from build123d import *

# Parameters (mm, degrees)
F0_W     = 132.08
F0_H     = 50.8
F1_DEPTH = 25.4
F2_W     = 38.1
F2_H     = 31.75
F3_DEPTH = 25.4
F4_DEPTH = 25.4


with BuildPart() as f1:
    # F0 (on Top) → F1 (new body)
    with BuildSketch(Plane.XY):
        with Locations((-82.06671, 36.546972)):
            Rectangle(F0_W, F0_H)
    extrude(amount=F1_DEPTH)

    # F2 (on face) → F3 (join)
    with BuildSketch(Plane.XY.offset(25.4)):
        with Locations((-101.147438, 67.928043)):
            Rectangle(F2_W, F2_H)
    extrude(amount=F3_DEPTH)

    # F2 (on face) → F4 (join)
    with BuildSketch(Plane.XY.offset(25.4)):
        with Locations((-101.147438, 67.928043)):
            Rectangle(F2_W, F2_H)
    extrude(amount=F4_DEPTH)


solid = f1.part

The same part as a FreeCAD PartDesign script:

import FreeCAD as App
import Part
import Sketcher
from FreeCAD import Vector
Q = App.Units.Quantity

doc = App.newDocument("Part")
body = doc.addObject("PartDesign::Body", "Body")

sketch1 = body.newObject("Sketcher::SketchObject", "Sketch")
sketch1.AttachmentSupport = (doc.getObject("XY_Plane"), [""])
sketch1.MapMode = "FlatFace"
sketch1.addGeometry(Part.LineSegment(Vector(-148, 62, 0), Vector(-148, 11, 0)), False)
sketch1.addGeometry(Part.LineSegment(Vector(-148, 11, 0), Vector(-16, 11, 0)), False)
sketch1.addGeometry(Part.LineSegment(Vector(-16, 11, 0), Vector(-16, 62, 0)), False)
sketch1.addGeometry(Part.LineSegment(Vector(-16, 62, 0), Vector(-148, 62, 0)), False)
sketch1.addConstraint(Sketcher.Constraint("Coincident", 0, 2, 1, 1))
sketch1.addConstraint(Sketcher.Constraint("Coincident", 1, 2, 2, 1))
sketch1.addConstraint(Sketcher.Constraint("Coincident", 2, 2, 3, 1))
sketch1.addConstraint(Sketcher.Constraint("Coincident", 3, 2, 0, 1))
sketch1.addConstraint(Sketcher.Constraint("Vertical", 0))
sketch1.addConstraint(Sketcher.Constraint("Horizontal", 1))
sketch1.addConstraint(Sketcher.Constraint("Vertical", 2))
sketch1.addConstraint(Sketcher.Constraint("Horizontal", 3))
sketch1.addConstraint(Sketcher.Constraint("DistanceY", 0, 2, 0, 1, Q("2 in")))
sketch1.addConstraint(Sketcher.Constraint("DistanceX", 1, 1, 1, 2, Q("5.2 in")))
sketch1.addConstraint(Sketcher.Constraint("DistanceX", 0, 2, -1, 1, Q("148.10671 mm")))
sketch1.addConstraint(Sketcher.Constraint("DistanceY", -1, 1, 0, 2, Q("11.146972 mm")))
pad1 = body.newObject("PartDesign::Pad", "Pad")
pad1.Profile = sketch1
pad1.Length = Q("1 in")

sketch2 = body.newObject("Sketcher::SketchObject", "Sketch001")
sketch2.AttachmentSupport = (doc.getObject("XY_Plane"), [""])
sketch2.MapMode = "FlatFace"
sketch2.AttachmentOffset = App.Placement(Vector(0, 0, 1 * 25.4), App.Rotation())
sketch2.addGeometry(Part.LineSegment(Vector(-120, 84, 0), Vector(-120, 52, 0)), False)
sketch2.addGeometry(Part.LineSegment(Vector(-120, 52, 0), Vector(-82, 52, 0)), False)
sketch2.addGeometry(Part.LineSegment(Vector(-82, 52, 0), Vector(-82, 84, 0)), False)
sketch2.addGeometry(Part.LineSegment(Vector(-82, 84, 0), Vector(-120, 84, 0)), False)
sketch2.addConstraint(Sketcher.Constraint("Coincident", 0, 2, 1, 1))
sketch2.addConstraint(Sketcher.Constraint("Coincident", 1, 2, 2, 1))
sketch2.addConstraint(Sketcher.Constraint("Coincident", 2, 2, 3, 1))
sketch2.addConstraint(Sketcher.Constraint("Coincident", 3, 2, 0, 1))
sketch2.addConstraint(Sketcher.Constraint("Vertical", 0))
sketch2.addConstraint(Sketcher.Constraint("Horizontal", 1))
sketch2.addConstraint(Sketcher.Constraint("Vertical", 2))
sketch2.addConstraint(Sketcher.Constraint("Horizontal", 3))
sketch2.addConstraint(Sketcher.Constraint("DistanceX", 1, 1, 1, 2, Q("1.5 in")))
sketch2.addConstraint(Sketcher.Constraint("DistanceY", 0, 2, 0, 1, Q("1.25 in")))
sketch2.addConstraint(Sketcher.Constraint("DistanceX", 0, 2, -1, 1, Q("120.197438 mm")))
sketch2.addConstraint(Sketcher.Constraint("DistanceY", -1, 1, 0, 2, Q("52.053043 mm")))
pad2 = body.newObject("PartDesign::Pad", "Pad001")
pad2.Profile = sketch2
pad2.Length = Q("1 in")

sketch3 = body.newObject("Sketcher::SketchObject", "Sketch002")
sketch3.AttachmentSupport = (doc.getObject("XY_Plane"), [""])
sketch3.MapMode = "FlatFace"
sketch3.AttachmentOffset = App.Placement(Vector(0, 0, 1 * 25.4), App.Rotation())
sketch3.addGeometry(Part.LineSegment(Vector(-120, 84, 0), Vector(-120, 52, 0)), False)
sketch3.addGeometry(Part.LineSegment(Vector(-120, 52, 0), Vector(-82, 52, 0)), False)
sketch3.addGeometry(Part.LineSegment(Vector(-82, 52, 0), Vector(-82, 84, 0)), False)
sketch3.addGeometry(Part.LineSegment(Vector(-82, 84, 0), Vector(-120, 84, 0)), False)
sketch3.addConstraint(Sketcher.Constraint("Coincident", 0, 2, 1, 1))
sketch3.addConstraint(Sketcher.Constraint("Coincident", 1, 2, 2, 1))
sketch3.addConstraint(Sketcher.Constraint("Coincident", 2, 2, 3, 1))
sketch3.addConstraint(Sketcher.Constraint("Coincident", 3, 2, 0, 1))
sketch3.addConstraint(Sketcher.Constraint("Vertical", 0))
sketch3.addConstraint(Sketcher.Constraint("Horizontal", 1))
sketch3.addConstraint(Sketcher.Constraint("Vertical", 2))
sketch3.addConstraint(Sketcher.Constraint("Horizontal", 3))
sketch3.addConstraint(Sketcher.Constraint("DistanceX", 1, 1, 1, 2, Q("1.5 in")))
sketch3.addConstraint(Sketcher.Constraint("DistanceY", 0, 2, 0, 1, Q("1.25 in")))
sketch3.addConstraint(Sketcher.Constraint("DistanceX", 0, 2, -1, 1, Q("120.197438 mm")))
sketch3.addConstraint(Sketcher.Constraint("DistanceY", -1, 1, 0, 2, Q("52.053043 mm")))
pad3 = body.newObject("PartDesign::Pad", "Pad002")
pad3.Profile = sketch3
pad3.Length = Q("1 in")

doc.recompute()
